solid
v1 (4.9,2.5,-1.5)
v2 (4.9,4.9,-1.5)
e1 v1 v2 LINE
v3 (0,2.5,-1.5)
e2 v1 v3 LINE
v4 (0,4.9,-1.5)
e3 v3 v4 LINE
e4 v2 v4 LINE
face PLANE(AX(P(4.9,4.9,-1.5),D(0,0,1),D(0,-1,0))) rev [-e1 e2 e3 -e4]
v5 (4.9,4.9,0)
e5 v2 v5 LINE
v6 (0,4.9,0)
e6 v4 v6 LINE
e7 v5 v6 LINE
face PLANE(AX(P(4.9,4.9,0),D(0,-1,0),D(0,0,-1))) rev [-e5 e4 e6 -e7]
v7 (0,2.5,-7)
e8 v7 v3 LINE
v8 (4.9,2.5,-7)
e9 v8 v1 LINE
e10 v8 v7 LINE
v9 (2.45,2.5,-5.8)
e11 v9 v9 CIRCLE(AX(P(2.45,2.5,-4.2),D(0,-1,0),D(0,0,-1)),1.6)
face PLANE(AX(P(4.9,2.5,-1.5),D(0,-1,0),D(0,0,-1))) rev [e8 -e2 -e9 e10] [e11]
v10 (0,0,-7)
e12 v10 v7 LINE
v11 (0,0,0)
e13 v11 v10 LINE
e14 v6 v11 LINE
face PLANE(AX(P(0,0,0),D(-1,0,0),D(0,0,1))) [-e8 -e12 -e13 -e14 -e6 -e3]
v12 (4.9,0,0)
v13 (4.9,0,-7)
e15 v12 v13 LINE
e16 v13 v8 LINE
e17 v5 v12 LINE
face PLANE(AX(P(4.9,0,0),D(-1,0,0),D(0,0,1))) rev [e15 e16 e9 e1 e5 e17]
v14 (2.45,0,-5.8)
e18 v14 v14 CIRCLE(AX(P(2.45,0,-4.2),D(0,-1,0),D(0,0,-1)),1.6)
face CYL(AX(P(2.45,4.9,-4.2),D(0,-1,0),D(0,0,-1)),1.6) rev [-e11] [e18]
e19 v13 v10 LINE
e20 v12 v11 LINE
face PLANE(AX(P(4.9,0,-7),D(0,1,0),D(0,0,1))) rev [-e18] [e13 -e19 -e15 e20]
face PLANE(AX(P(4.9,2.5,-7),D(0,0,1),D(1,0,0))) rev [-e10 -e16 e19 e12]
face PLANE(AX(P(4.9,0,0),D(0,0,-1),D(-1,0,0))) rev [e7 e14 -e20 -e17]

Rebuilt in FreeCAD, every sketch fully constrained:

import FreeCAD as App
import Part
import Sketcher
from FreeCAD import Vector
Q = App.Units.Quantity

doc = App.newDocument("Part")
body = doc.addObject("PartDesign::Body", "Body")

# Sketch on YZ plane
sketch1 = doc.addObject("Sketcher::SketchObject", "Sketch")
body.addObject(sketch1)
sketch1.AttachmentSupport = (doc.YZ_Plane, [""])
sketch1.MapMode = "FlatFace"
sketch1.addGeometry([
    Part.LineSegment(Vector(4.9, 0, 0), Vector(0, 0, 0)),  # 0
    Part.LineSegment(Vector(0, 0, 0), Vector(0, -7, 0)),  # 1
    Part.LineSegment(Vector(0, -7, 0), Vector(2.5, -7, 0)),  # 2
    Part.LineSegment(Vector(2.5, -7, 0), Vector(2.5, -1.5, 0)),  # 3
    Part.LineSegment(Vector(2.5, -1.5, 0), Vector(4.9, -1.5, 0)),  # 4
    Part.LineSegment(Vector(4.9, -1.5, 0), Vector(4.9, 0, 0)),  # 5
], False)
sketch1.addConstraint([
    Sketcher.Constraint("Coincident", 0, 2, 1, 1),
    Sketcher.Constraint("Coincident", 1, 2, 2, 1),
    Sketcher.Constraint("Coincident", 2, 2, 3, 1),
    Sketcher.Constraint("Coincident", 3, 2, 4, 1),
    Sketcher.Constraint("Coincident", 4, 2, 5, 1),
    Sketcher.Constraint("Coincident", 5, 2, 0, 1),
    Sketcher.Constraint("Horizontal", 0),
    Sketcher.Constraint("Vertical", 1),
    Sketcher.Constraint("Horizontal", 2),
    Sketcher.Constraint("Vertical", 3),
    Sketcher.Constraint("Horizontal", 4),
    Sketcher.Constraint("Vertical", 5),
    Sketcher.Constraint("Coincident", 0, 2, -1, 1),
    Sketcher.Constraint("DistanceY", 1, 2, 1, 1, Q("7 mm")),
    Sketcher.Constraint("DistanceX", 0, 2, 0, 1, Q("4.9 mm")),
    Sketcher.Constraint("DistanceX", 2, 1, 2, 2, Q("2.5 mm")),
    Sketcher.Constraint("DistanceY", 3, 1, 3, 2, Q("5.5 mm")),
])
pad1 = doc.addObject("PartDesign::Pad", "Pad")
body.addObject(pad1)
pad1.Profile = sketch1
pad1.Length = 4.9

# Sketch on XZ plane
sketch2 = doc.addObject("Sketcher::SketchObject", "Sketch001")
body.addObject(sketch2)
sketch2.AttachmentSupport = (doc.XZ_Plane, [""])
sketch2.MapMode = "FlatFace"
sketch2.addGeometry(Part.Circle(Vector(2.5, -4.2, 0), Vector(0, 0, 1), 1.6), False)
sketch2.addConstraint([
    Sketcher.Constraint("Diameter", 0, Q("3.2 mm")),
    Sketcher.Constraint("DistanceY", 0, 3, -1, 1, Q("4.2 mm")),
    Sketcher.Constraint("DistanceX", -1, 1, 0, 3, Q("2.45 mm")),
])
pocket1 = doc.addObject("PartDesign::Pocket", "Pocket")
body.addObject(pocket1)
pocket1.Profile = sketch2
pocket1.Type = "ThroughAll"

doc.recompute()
